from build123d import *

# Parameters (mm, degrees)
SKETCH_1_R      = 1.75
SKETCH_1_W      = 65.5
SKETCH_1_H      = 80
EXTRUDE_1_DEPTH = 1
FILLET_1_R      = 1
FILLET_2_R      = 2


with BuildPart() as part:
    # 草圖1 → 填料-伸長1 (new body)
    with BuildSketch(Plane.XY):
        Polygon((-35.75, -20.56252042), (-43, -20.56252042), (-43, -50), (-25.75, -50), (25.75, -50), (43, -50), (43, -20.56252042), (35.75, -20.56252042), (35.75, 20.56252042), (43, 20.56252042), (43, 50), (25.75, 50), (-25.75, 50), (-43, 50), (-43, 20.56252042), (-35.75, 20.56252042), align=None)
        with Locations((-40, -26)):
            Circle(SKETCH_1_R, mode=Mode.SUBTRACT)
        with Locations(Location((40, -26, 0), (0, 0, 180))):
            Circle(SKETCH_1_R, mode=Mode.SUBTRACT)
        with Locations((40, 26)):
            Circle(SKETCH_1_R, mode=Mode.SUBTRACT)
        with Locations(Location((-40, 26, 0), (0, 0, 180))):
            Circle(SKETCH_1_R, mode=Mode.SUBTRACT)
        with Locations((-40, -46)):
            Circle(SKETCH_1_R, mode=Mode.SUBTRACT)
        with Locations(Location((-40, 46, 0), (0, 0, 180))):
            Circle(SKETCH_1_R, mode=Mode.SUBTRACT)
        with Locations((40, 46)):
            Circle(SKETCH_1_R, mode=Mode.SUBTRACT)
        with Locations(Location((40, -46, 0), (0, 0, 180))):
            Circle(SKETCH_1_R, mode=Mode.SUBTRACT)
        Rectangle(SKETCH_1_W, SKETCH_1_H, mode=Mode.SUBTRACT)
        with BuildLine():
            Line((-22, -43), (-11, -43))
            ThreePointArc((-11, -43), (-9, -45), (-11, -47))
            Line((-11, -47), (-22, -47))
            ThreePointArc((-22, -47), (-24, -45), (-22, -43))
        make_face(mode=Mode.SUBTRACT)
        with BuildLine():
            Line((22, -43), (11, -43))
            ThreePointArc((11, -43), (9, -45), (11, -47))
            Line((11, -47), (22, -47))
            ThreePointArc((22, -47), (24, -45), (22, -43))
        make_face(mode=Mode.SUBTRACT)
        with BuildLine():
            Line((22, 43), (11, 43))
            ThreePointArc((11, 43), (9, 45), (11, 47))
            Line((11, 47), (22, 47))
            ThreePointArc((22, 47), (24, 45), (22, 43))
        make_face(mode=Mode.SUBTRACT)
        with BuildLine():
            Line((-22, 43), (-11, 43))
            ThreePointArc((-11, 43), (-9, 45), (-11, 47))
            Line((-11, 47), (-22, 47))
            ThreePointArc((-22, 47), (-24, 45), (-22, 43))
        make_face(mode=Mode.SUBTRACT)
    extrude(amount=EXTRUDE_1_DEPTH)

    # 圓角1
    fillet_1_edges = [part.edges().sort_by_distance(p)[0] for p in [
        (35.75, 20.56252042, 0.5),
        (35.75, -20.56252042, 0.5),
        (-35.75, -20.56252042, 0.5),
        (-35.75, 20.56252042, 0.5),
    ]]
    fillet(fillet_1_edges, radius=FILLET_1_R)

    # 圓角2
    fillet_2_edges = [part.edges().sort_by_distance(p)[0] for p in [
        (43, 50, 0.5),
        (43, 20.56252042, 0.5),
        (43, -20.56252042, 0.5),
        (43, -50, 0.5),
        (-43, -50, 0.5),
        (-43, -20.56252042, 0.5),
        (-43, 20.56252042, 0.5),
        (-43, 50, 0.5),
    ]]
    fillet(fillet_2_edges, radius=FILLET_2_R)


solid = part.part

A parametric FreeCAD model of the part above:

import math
import FreeCAD as App
import Part
import Sketcher
from FreeCAD import Vector


def edges_at(feature, points):
    """Names of the edges that pass closest to the given points."""
    edges = feature.Shape.Edges
    near = lambda p: min(range(len(edges)), key=lambda i: edges[i].distToShape(Part.Vertex(*p))[0])
    return sorted({f"Edge{near(p) + 1}" for p in points})


def add_polygon(sketch, points):
    """Adds a closed chain of lines whose ends are joined by coincident constraints."""
    first, n = sketch.GeometryCount, len(points)
    for a, b in zip(points, points[1:] + points[:1]):
        sketch.addGeometry(Part.LineSegment(App.Vector(*a, 0), App.Vector(*b, 0)), False)
    for i in range(n):
        sketch.addConstraint(Sketcher.Constraint("Coincident", first + i, 2, first + (i + 1) % n, 1))

doc = App.newDocument("Part")
body = doc.addObject("PartDesign::Body", "Body")

# Sketch on XY plane
sketch1 = body.newObject("Sketcher::SketchObject", "Sketch")
sketch1.AttachmentSupport = (doc.getObject("XY_Plane"), [""])
sketch1.MapMode = "FlatFace"
add_polygon(sketch1, [(-35.75, -20.56252), (-43, -20.56252), (-43, -50), (43, -50), (43, -20.56252), (35.75, -20.56252), (35.75, 20.56252), (43, 20.56252), (43, 50), (-43, 50), (-43, 20.56252), (-35.75, 20.56252)])  # lines 0-11
sketch1.addGeometry(Part.Circle(Vector(-40, -46, 0), Vector(0, 0, 1), 1.75), False)  # 12
sketch1.addGeometry(Part.Circle(Vector(-40, -26, 0), Vector(0, 0, 1), 1.75), False)  # 13
sketch1.addGeometry(Part.ArcOfCircle(Part.Circle(Vector(-22, -45, 0), Vector(0, 0, 1), 2), math.radians(90), math.radians(270)), False)  # 14
sketch1.addGeometry(Part.LineSegment(Vector(-22, -43, 0), Vector(-11, -43, 0)), False)  # 15
sketch1.addGeometry(Part.ArcOfCircle(Part.Circle(Vector(-11, -45, 0), Vector(0, 0, 1), 2), math.radians(-90), math.radians(90)), False)  # 16
sketch1.addGeometry(Part.LineSegment(Vector(-11, -47, 0), Vector(-22, -47, 0)), False)  # 17
sketch1.addGeometry(Part.LineSegment(Vector(11, -43, 0), Vector(22, -43, 0)), False)  # 18
sketch1.addGeometry(Part.ArcOfCircle(Part.Circle(Vector(22, -45, 0), Vector(0, 0, 1), 2), math.radians(-90), math.radians(90)), False)  # 19
sketch1.addGeometry(Part.LineSegment(Vector(22, -47, 0), Vector(11, -47, 0)), False)  # 20
sketch1.addGeometry(Part.ArcOfCircle(Part.Circle(Vector(11, -45, 0), Vector(0, 0, 1), 2), math.radians(90), math.radians(270)), False)  # 21
sketch1.addGeometry(Part.Circle(Vector(40, -46, 0), Vector(0, 0, 1), 1.75), False)  # 22
sketch1.addGeometry(Part.Circle(Vector(40, -26, 0), Vector(0, 0, 1), 1.75), False)  # 23
sketch1.addGeometry(Part.Circle(Vector(-40, 26, 0), Vector(0, 0, 1), 1.75), False)  # 24
sketch1.addGeometry(Part.Circle(Vector(-40, 46, 0), Vector(0, 0, 1), 1.75), False)  # 25
sketch1.addGeometry(Part.LineSegment(Vector(-11, 43, 0), Vector(-22, 43, 0)), False)  # 26
sketch1.addGeometry(Part.ArcOfCircle(Part.Circle(Vector(-22, 45, 0), Vector(0, 0, 1), 2), math.radians(90), math.radians(270)), False)  # 27
sketch1.addGeometry(Part.LineSegment(Vector(-22, 47, 0), Vector(-11, 47, 0)), False)  # 28
sketch1.addGeometry(Part.ArcOfCircle(Part.Circle(Vector(-11, 45, 0), Vector(0, 0, 1), 2), math.radians(-90), math.radians(90)), False)  # 29
add_polygon(sketch1, [(32.75, -40), (-32.75, -40), (-32.75, 40), (32.75, 40)])  # lines 30-33
sketch1.addGeometry(Part.ArcOfCircle(Part.Circle(Vector(22, 45, 0), Vector(0, 0, 1), 2), math.radians(-90), math.radians(90)), False)  # 34
sketch1.addGeometry(Part.LineSegment(Vector(22, 43, 0), Vector(11, 43, 0)), False)  # 35
sketch1.addGeometry(Part.ArcOfCircle(Part.Circle(Vector(11, 45, 0), Vector(0, 0, 1), 2), math.radians(90), math.radians(270)), False)  # 36
sketch1.addGeometry(Part.LineSegment(Vector(11, 47, 0), Vector(22, 47, 0)), False)  # 37
sketch1.addGeometry(Part.Circle(Vector(40, 26, 0), Vector(0, 0, 1), 1.75), False)  # 38
sketch1.addGeometry(Part.Circle(Vector(40, 46, 0), Vector(0, 0, 1), 1.75), False)  # 39
sketch1.addConstraint([
    Sketcher.Constraint("Tangent", 14, 1, 15, 1),
    Sketcher.Constraint("Tangent", 15, 2, 16, 2),
    Sketcher.Constraint("Tangent", 16, 1, 17, 1),
    Sketcher.Constraint("Tangent", 17, 2, 14, 2),
    Sketcher.Constraint("Tangent", 18, 2, 19, 2),
    Sketcher.Constraint("Tangent", 19, 1, 20, 1),
    Sketcher.Constraint("Tangent", 20, 2, 21, 2),
    Sketcher.Constraint("Tangent", 21, 1, 18, 1),
    Sketcher.Constraint("Tangent", 26, 2, 27, 2),
    Sketcher.Constraint("Tangent", 27, 1, 28, 1),
    Sketcher.Constraint("Tangent", 28, 2, 29, 2),
    Sketcher.Constraint("Tangent", 29, 1, 26, 1),
    Sketcher.Constraint("Tangent", 34, 1, 35, 1),
    Sketcher.Constraint("Tangent", 35, 2, 36, 2),
    Sketcher.Constraint("Tangent", 36, 1, 37, 1),
    Sketcher.Constraint("Tangent", 37, 2, 34, 2),
    Sketcher.Constraint("Horizontal", 0),
    Sketcher.Constraint("Vertical", 1),
    Sketcher.Constraint("Horizontal", 2),
    Sketcher.Constraint("Vertical", 3),
    Sketcher.Constraint("Horizontal", 4),
    Sketcher.Constraint("Vertical", 5),
    Sketcher.Constraint("Horizontal", 6),
    Sketcher.Constraint("Vertical", 7),
    Sketcher.Constraint("Horizontal", 8),
    Sketcher.Constraint("Vertical", 9),
    Sketcher.Constraint("Horizontal", 10),
    Sketcher.Constraint("Vertical", 11),
    Sketcher.Constraint("Horizontal", 15),
    Sketcher.Constraint("Horizontal", 17),
    Sketcher.Constraint("Horizontal", 18),
    Sketcher.Constraint("Horizontal", 20),
    Sketcher.Constraint("Horizontal", 26),
    Sketcher.Constraint("Horizontal", 28),
    Sketcher.Constraint("Horizontal", 30),
    Sketcher.Constraint("Vertical", 31),
    Sketcher.Constraint("Horizontal", 32),
    Sketcher.Constraint("Vertical", 33),
    Sketcher.Constraint("Horizontal", 35),
    Sketcher.Constraint("Horizontal", 37),
    Sketcher.Constraint("Equal", 12, 13),
    Sketcher.Constraint("Equal", 16, 19),
    Sketcher.Constraint("Equal", 13, 22),
    Sketcher.Constraint("Equal", 22, 23),
    Sketcher.Constraint("Equal", 23, 24),
    Sketcher.Constraint("Equal", 24, 25),
    Sketcher.Constraint("Equal", 21, 27),
    Sketcher.Constraint("Equal", 29, 34),
    Sketcher.Constraint("Equal", 25, 38),
    Sketcher.Constraint("Equal", 38, 39),
    Sketcher.Constraint("Symmetric", 23, 3, 24, 3, -1, 1),
    Sketcher.Constraint("Symmetric", 22, 3, 25, 3, -1, 1),
    Sketcher.Constraint("Symmetric", 19, 3, 27, 3, -1, 1),
    Sketcher.Constraint("Symmetric", 14, 3, 34, 3, -1, 1),
    Sketcher.Constraint("Symmetric", 13, 3, 38, 3, -1, 1),
    Sketcher.Constraint("Symmetric", 12, 3, 39, 3, -1, 1),
    Sketcher.Constraint("Symmetric", 0, 2, 6, 2, -1, 1),
    Sketcher.Constraint("Symmetric", 2, 2, 8, 2, -1, 1),
    Sketcher.Constraint("Symmetric", 4, 2, 10, 2, -1, 1),
    Sketcher.Constraint("Symmetric", 30, 2, 32, 2, -1, 1),
    Sketcher.Constraint("Symmetric", 14, 3, 19, 3, -2),
    Sketcher.Constraint("Symmetric", 12, 3, 22, 3, -2),
    Sketcher.Constraint("Symmetric", 13, 3, 23, 3, -2),
    Sketcher.Constraint("Symmetric", 0, 2, 3, 2, -2),
    Sketcher.Constraint("Vertical", 12, 3, 13, 3),
    Sketcher.Constraint("Vertical", 16, 3, 29, 3),
    Sketcher.Constraint("Vertical", 21, 3, 36, 3),
    Sketcher.Constraint("Equal", 17, 18),
    Sketcher.Constraint("Radius", 14, 2.0),
    Sketcher.Constraint("Diameter", 12, 3.5),
    Sketcher.Constraint("DistanceX", 2, 1, 2, 2, 86.0),
    Sketcher.Constraint("DistanceX", 15, 1, 15, 2, 11.0),
    Sketcher.Constraint("DistanceY", 31, 1, 31, 2, 80.0),
    Sketcher.Constraint("DistanceX", 30, 2, 30, 1, 65.5),
    Sketcher.Constraint("DistanceX", 12, 3, -1, 1, 40.0),
    Sketcher.Constraint("DistanceY", 12, 3, -1, 1, 46.0),
    Sketcher.Constraint("DistanceY", 13, 3, -1, 1, 26.0),
    Sketcher.Constraint("DistanceX", 14, 3, -1, 1, 22.0),
    Sketcher.Constraint("DistanceY", 14, 3, -1, 1, 45.0),
    Sketcher.Constraint("DistanceY", 1, 2, -1, 1, 50.0),
    Sketcher.Constraint("DistanceX", 32, 2, 5, 2, 3.0),
    Sketcher.Constraint("DistanceY", 1, 2, 1, 1, 29.43748),
])
pad1 = body.newObject("PartDesign::Pad", "Pad")
pad1.Profile = sketch1
pad1.Length = 1
doc.recompute()

fillet = body.newObject("PartDesign::Fillet", "Fillet")
fillet.Base = (pad1, edges_at(pad1, [
    (35.75, 20.563, 0.5),
    (35.75, -20.563, 0.5),
    (-35.75, -20.563, 0.5),
    (-35.75, 20.563, 0.5),
]))
fillet.Radius = 1
doc.recompute()

fillet2 = body.newObject("PartDesign::Fillet", "Fillet001")
fillet2.Base = (fillet, edges_at(fillet, [
    (43, 50, 0.5),
    (43, 20.563, 0.5),
    (43, -20.563, 0.5),
    (43, -50, 0.5),
    (-43, -50, 0.5),
    (-43, -20.563, 0.5),
    (-43, 20.563, 0.5),
    (-43, 50, 0.5),
]))
fillet2.Radius = 2

doc.recompute()
